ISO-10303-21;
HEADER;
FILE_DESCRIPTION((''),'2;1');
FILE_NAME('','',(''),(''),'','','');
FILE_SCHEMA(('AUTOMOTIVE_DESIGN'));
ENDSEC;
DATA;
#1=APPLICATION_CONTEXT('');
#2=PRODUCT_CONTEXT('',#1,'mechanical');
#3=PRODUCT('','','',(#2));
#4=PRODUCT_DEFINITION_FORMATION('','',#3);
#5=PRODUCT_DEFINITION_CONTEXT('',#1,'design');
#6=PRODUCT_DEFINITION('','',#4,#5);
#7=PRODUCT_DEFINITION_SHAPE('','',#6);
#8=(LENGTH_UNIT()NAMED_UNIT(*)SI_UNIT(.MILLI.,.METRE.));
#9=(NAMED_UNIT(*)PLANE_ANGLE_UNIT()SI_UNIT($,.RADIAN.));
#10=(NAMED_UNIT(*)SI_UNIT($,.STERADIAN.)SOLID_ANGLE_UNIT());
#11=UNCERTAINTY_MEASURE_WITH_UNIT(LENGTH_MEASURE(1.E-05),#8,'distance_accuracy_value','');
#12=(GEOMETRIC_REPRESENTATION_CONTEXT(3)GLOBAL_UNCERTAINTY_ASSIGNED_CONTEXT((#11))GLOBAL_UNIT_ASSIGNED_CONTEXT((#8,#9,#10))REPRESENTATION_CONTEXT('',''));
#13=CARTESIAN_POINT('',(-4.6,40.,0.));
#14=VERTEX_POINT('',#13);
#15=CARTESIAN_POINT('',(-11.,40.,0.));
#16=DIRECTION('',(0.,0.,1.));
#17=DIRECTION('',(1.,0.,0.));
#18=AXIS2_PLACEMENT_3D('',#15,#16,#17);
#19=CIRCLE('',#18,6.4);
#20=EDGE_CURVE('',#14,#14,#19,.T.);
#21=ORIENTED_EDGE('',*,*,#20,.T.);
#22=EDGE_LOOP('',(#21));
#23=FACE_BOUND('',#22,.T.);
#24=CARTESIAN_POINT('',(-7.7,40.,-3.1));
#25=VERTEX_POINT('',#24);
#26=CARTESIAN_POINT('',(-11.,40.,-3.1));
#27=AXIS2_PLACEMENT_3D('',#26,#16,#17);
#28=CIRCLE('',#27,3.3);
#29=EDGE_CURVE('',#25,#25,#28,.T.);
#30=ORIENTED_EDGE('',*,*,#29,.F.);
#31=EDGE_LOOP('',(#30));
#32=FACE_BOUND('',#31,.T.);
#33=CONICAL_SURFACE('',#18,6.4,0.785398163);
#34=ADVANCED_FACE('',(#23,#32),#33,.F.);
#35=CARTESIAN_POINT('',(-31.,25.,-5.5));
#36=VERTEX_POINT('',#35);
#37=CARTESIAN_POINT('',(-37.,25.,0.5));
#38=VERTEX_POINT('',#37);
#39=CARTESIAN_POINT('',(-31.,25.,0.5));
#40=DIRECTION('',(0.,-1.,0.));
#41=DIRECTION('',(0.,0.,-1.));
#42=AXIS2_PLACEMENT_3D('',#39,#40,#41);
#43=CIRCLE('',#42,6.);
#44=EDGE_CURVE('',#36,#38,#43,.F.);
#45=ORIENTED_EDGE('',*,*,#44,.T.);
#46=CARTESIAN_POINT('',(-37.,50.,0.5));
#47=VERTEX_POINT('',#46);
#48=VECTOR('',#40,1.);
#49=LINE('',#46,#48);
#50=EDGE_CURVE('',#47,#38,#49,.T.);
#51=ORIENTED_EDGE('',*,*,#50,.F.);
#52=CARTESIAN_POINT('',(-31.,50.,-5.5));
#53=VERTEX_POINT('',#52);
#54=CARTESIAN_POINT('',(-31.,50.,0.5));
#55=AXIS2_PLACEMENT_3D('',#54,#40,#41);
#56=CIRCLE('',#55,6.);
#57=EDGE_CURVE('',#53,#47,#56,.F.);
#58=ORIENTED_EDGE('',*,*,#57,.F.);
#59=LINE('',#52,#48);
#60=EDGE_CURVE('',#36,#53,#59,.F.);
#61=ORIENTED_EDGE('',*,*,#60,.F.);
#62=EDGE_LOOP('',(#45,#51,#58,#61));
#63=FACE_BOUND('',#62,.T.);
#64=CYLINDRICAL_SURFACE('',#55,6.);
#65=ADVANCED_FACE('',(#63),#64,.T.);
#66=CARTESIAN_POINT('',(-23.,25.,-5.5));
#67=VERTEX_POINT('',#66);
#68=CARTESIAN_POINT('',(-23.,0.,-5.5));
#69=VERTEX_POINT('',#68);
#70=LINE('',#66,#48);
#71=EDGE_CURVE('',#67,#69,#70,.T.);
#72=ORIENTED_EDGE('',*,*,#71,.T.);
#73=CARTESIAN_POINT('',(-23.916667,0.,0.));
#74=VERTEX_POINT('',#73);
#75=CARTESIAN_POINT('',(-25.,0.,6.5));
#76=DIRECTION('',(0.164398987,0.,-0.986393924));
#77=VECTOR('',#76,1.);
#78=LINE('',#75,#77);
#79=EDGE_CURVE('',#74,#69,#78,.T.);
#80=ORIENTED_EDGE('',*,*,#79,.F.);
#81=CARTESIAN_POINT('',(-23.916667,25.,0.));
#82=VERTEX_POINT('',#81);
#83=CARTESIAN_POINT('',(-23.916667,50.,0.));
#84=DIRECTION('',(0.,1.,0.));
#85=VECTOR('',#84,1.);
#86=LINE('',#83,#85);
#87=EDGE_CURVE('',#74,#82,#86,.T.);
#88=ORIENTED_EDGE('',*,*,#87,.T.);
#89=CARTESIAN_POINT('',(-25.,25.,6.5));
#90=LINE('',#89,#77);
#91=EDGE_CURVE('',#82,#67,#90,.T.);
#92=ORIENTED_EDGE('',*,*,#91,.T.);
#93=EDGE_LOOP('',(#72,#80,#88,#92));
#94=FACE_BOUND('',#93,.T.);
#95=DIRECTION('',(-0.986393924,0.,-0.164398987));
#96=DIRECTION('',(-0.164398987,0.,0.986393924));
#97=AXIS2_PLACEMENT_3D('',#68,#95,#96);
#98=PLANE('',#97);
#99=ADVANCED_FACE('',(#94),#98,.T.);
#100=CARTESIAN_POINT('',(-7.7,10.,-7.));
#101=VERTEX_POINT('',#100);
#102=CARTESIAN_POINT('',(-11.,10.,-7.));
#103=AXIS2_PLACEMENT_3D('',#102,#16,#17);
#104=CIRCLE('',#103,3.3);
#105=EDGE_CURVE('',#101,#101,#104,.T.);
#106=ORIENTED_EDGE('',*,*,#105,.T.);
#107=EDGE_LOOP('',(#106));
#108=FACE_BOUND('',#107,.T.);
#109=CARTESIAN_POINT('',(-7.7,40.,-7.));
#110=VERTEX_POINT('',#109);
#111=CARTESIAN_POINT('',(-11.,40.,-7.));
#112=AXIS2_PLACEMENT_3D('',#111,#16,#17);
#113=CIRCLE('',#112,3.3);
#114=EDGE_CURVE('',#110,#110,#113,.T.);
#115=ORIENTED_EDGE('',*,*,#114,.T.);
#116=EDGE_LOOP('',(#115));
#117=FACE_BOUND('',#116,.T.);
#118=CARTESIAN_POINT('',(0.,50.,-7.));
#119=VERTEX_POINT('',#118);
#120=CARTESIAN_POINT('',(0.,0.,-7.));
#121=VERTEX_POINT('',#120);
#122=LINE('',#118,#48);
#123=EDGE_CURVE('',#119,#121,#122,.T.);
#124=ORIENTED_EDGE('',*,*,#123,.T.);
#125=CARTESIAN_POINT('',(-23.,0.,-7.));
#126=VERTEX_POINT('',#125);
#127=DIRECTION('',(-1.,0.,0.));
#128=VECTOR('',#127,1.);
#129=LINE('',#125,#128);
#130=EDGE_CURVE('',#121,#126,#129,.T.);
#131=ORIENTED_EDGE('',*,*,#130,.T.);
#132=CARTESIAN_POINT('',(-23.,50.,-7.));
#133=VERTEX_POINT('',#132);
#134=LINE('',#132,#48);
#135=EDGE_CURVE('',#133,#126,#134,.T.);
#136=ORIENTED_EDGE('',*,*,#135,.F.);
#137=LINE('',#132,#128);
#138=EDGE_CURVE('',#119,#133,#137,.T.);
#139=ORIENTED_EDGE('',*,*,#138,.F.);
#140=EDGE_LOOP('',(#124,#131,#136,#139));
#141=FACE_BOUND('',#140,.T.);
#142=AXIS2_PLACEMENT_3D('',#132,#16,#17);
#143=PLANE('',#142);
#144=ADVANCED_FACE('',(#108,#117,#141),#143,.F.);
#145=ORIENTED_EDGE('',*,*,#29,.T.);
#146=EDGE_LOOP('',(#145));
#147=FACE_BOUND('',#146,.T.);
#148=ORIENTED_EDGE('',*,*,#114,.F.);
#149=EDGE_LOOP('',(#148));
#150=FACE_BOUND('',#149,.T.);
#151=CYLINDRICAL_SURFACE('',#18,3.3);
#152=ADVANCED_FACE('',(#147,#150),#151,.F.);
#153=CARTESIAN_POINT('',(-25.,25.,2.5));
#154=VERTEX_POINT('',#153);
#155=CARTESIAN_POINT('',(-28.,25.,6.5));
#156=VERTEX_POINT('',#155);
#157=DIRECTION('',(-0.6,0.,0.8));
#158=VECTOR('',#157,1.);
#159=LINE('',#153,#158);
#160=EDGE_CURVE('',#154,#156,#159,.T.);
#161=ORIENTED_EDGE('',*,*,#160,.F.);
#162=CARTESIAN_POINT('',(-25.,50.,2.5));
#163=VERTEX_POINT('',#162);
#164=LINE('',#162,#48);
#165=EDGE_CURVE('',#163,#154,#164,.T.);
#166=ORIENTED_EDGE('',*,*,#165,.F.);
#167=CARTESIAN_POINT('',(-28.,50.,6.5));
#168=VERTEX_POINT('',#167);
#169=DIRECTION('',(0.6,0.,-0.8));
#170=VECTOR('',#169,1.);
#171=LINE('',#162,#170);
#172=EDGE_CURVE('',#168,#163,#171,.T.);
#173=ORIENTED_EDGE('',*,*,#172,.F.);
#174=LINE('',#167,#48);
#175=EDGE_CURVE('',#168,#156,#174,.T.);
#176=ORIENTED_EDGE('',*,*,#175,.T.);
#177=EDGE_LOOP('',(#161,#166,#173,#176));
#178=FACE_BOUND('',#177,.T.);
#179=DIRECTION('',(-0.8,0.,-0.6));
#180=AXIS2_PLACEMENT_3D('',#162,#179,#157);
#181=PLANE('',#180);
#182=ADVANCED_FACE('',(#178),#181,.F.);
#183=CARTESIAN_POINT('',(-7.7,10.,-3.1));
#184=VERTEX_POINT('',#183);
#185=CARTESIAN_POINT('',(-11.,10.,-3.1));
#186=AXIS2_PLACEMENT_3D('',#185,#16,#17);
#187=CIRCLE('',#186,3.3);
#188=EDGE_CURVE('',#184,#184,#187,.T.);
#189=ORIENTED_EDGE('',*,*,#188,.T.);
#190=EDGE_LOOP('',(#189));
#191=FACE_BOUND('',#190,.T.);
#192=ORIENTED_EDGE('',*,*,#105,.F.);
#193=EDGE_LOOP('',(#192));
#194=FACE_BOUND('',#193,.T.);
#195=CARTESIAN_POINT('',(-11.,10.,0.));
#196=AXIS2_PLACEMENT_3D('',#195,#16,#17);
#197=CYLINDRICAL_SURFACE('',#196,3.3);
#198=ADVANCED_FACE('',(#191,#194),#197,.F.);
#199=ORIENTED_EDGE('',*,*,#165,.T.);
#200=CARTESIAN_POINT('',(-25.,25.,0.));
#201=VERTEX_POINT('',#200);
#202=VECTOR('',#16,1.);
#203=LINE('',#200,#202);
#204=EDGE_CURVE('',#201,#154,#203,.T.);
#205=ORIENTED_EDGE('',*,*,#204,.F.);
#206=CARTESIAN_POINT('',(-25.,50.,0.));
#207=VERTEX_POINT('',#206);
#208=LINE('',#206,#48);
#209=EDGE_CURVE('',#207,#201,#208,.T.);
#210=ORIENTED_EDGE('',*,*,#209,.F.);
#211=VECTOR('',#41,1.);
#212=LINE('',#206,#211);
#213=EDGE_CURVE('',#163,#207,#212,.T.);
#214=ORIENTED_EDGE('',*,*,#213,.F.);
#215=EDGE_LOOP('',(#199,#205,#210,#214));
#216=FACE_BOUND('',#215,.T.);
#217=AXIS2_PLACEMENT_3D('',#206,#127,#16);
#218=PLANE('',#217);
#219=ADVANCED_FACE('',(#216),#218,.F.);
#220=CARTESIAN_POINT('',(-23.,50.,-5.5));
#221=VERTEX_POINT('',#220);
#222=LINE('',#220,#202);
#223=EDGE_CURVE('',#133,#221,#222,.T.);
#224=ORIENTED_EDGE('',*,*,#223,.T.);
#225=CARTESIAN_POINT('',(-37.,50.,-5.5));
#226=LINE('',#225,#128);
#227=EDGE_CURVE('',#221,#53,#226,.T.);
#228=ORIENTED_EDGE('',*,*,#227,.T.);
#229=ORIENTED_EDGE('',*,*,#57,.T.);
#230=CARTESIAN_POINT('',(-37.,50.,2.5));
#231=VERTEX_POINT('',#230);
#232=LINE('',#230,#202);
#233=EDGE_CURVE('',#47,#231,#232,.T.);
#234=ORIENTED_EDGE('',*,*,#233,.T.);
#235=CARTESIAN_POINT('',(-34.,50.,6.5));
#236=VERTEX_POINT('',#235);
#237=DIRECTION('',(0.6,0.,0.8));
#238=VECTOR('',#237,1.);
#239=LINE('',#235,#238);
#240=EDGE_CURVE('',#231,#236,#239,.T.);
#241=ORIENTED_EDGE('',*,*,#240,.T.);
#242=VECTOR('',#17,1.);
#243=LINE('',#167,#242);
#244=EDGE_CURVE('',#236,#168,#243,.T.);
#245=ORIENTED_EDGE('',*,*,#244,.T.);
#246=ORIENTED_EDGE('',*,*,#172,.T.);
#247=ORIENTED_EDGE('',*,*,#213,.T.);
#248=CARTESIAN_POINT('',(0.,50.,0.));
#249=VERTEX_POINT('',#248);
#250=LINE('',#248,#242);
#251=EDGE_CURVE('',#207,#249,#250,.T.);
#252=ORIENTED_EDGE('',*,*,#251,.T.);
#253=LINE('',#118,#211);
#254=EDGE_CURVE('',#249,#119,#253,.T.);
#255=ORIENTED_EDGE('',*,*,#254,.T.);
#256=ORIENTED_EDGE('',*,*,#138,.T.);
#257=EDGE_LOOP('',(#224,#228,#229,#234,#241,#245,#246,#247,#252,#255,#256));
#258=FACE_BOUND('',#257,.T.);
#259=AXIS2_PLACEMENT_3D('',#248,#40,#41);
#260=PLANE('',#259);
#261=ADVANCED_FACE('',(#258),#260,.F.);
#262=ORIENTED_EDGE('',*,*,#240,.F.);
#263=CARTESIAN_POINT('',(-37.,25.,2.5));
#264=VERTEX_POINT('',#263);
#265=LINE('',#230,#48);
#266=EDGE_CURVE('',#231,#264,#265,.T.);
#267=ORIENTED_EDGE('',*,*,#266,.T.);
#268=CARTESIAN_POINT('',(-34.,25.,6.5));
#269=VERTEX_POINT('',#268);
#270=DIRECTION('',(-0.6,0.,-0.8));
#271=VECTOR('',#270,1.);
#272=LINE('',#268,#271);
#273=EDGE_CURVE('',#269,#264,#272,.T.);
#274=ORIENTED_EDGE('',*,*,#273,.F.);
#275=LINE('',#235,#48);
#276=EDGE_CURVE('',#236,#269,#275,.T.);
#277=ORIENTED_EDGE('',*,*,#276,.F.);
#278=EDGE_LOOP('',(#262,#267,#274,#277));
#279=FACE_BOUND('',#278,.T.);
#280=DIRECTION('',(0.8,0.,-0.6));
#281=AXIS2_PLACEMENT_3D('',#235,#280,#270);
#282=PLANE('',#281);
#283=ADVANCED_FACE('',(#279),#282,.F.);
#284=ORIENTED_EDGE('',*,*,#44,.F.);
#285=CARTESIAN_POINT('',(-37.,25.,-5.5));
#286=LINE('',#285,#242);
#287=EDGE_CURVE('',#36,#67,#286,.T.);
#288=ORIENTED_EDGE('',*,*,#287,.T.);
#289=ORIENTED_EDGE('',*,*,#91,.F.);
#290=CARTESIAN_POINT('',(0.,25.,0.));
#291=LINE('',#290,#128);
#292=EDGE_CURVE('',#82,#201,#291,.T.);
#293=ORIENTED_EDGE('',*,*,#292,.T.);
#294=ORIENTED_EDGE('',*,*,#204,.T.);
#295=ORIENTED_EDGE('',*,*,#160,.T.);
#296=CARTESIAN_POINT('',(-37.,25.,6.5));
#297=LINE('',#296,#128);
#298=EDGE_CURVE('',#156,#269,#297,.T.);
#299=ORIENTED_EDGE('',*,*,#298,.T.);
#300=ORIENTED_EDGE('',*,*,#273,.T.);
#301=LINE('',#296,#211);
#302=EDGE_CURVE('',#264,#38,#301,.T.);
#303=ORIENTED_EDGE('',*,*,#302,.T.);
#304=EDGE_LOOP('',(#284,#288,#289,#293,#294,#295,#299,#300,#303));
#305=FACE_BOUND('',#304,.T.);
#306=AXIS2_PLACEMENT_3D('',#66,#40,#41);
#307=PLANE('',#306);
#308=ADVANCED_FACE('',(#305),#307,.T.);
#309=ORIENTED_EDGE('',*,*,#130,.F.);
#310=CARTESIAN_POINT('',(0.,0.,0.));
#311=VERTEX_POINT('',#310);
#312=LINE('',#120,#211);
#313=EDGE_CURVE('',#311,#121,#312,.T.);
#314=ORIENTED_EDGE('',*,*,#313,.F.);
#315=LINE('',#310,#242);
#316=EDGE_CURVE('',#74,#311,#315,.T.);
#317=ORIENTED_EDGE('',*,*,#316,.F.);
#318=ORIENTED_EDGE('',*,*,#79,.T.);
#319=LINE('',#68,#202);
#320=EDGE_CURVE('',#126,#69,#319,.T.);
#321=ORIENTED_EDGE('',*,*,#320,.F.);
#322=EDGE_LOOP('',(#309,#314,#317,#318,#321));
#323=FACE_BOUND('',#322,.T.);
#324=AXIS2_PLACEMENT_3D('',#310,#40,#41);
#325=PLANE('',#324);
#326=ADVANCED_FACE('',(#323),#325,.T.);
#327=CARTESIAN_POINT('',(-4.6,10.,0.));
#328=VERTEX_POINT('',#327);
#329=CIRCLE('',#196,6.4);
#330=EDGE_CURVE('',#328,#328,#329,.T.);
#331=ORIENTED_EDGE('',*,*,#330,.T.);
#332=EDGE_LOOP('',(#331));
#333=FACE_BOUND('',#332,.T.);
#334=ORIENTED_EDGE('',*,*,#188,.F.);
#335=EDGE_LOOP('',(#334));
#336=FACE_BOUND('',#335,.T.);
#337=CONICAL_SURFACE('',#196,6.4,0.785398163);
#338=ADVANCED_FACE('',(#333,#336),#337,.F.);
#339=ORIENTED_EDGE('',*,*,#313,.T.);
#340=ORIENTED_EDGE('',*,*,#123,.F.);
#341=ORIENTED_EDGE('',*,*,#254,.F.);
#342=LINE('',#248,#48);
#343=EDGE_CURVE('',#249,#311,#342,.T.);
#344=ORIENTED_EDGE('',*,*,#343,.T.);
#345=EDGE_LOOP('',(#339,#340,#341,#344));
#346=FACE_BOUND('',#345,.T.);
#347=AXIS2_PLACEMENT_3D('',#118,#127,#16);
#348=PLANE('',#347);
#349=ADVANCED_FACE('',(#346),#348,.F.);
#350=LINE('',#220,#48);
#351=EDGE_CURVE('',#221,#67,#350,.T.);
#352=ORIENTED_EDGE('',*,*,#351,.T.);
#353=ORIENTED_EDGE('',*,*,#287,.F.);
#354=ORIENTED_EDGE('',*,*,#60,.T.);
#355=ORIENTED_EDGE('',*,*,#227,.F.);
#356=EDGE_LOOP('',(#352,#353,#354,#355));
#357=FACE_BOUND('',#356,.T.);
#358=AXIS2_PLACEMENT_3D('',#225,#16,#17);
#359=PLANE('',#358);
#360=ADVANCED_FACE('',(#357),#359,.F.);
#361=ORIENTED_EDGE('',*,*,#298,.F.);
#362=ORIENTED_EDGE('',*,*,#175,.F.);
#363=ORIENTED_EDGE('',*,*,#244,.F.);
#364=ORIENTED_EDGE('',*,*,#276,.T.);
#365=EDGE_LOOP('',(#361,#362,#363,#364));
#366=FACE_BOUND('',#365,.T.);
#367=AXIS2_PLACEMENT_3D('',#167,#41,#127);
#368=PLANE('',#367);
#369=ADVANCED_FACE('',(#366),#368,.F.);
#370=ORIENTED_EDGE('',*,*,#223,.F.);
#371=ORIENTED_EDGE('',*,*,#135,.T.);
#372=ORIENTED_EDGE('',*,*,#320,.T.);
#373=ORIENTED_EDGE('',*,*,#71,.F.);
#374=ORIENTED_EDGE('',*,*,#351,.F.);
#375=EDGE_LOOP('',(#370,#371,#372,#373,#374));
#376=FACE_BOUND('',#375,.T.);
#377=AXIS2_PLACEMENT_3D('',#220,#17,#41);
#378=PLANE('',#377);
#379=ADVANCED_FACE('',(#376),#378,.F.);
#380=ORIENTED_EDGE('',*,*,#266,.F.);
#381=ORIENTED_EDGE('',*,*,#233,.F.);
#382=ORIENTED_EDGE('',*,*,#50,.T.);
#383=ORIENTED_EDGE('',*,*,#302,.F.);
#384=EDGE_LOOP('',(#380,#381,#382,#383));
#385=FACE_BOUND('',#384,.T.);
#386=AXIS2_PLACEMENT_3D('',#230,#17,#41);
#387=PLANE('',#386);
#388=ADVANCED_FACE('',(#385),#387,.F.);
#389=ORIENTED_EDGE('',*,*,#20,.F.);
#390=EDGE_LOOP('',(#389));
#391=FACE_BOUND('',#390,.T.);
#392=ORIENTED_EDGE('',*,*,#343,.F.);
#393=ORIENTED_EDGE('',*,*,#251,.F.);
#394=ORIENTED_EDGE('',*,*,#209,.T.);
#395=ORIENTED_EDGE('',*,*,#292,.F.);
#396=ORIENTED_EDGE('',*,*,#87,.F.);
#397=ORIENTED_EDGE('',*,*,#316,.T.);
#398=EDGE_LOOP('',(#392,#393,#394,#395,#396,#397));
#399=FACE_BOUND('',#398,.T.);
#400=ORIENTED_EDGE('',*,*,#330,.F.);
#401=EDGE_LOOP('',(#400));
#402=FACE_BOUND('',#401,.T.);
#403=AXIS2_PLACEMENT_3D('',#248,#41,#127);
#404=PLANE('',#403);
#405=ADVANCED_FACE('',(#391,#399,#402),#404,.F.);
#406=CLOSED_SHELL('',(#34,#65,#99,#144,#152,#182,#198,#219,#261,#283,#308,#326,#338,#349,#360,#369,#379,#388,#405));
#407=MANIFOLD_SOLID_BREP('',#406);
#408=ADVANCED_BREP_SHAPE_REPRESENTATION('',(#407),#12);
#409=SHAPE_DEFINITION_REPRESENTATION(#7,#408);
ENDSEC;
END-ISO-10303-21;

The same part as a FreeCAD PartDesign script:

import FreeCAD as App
import Part
import Sketcher
Q = App.Units.Quantity


def edges_at(feature, points):
    """Names of the edges that pass closest to the given points."""
    edges = feature.Shape.Edges
    near = lambda p: min(range(len(edges)), key=lambda i: edges[i].distToShape(Part.Vertex(*p))[0])
    return sorted({f"Edge{near(p) + 1}" for p in points})


def add_polygon(sketch, points):
    """Adds a closed chain of lines whose ends are joined by coincident constraints."""
    first, n = sketch.GeometryCount, len(points)
    for a, b in zip(points, points[1:] + points[:1]):
        sketch.addGeometry(Part.LineSegment(App.Vector(*a, 0), App.Vector(*b, 0)), False)
    for i in range(n):
        sketch.addConstraint(Sketcher.Constraint("Coincident", first + i, 2, first + (i + 1) % n, 1))

doc = App.newDocument("Part")
body = doc.addObject("PartDesign::Body", "Body")

# Sketch on XZ plane
sketch1 = body.newObject("Sketcher::SketchObject", "Sketch")
sketch1.AttachmentSupport = (doc.getObject("XZ_Plane"), [""])
sketch1.MapMode = "FlatFace"
add_polygon(sketch1, [(-25, 0), (0, 0), (0, -7), (-23, -7), (-23, -5.5), (-37, -5.5), (-37, 2.5), (-34, 6.5), (-28, 6.5), (-25, 2.5)])  # lines 0-9
sketch1.addConstraint([
    Sketcher.Constraint("Horizontal", 0),
    Sketcher.Constraint("Vertical", 1),
    Sketcher.Constraint("Horizontal", 2),
    Sketcher.Constraint("Vertical", 3),
    Sketcher.Constraint("Horizontal", 4),
    Sketcher.Constraint("Vertical", 5),
    Sketcher.Constraint("Horizontal", 7),
    Sketcher.Constraint("Vertical", 9),
    Sketcher.Constraint("Coincident", 0, 2, -1, 1),
    Sketcher.Constraint("Horizontal", 5, 2, 8, 2),
    Sketcher.Constraint("Equal", 6, 8),
    Sketcher.Constraint("DistanceX", 0, 1, 0, 2, Q("25 mm")),
    Sketcher.Constraint("DistanceX", 2, 2, 2, 1, Q("23 mm")),
    Sketcher.Constraint("DistanceX", 4, 2, 4, 1, Q("14 mm")),
    Sketcher.Constraint("DistanceX", 7, 1, 7, 2, Q("6 mm")),
    Sketcher.Constraint("DistanceY", 1, 2, 1, 1, Q("7 mm")),
    Sketcher.Constraint("DistanceY", 5, 1, 5, 2, Q("8 mm")),
    Sketcher.Constraint("Distance", 6, Q("5 mm")),
    Sketcher.Constraint("DistanceY", 3, 1, 3, 2, Q("1.5 mm")),
])
pad1 = body.newObject("PartDesign::Pad", "Pad")
pad1.Profile = sketch1
pad1.Length = 50
pad1.Reversed = True
doc.recompute()

fillet = body.newObject("PartDesign::Fillet", "Fillet")
fillet.Base = (pad1, edges_at(pad1, [(-37, 25, -5.5)]))
fillet.Radius = 6

# Sketch on XY plane
sketch2 = body.newObject("Sketcher::SketchObject", "Sketch001")
sketch2.AttachmentSupport = (doc.getObject("XY_Plane"), [""])
sketch2.MapMode = "FlatFace"
sketch2.addGeometry([
    Part.Circle(App.Vector(-11, 40, 0), App.Vector(0, 0, 1), 3.3),
    Part.Circle(App.Vector(-11, 10, 0), App.Vector(0, 0, 1), 3.3),
], False)
sketch2.addConstraint([
    Sketcher.Constraint("Equal", 0, 1),
    Sketcher.Constraint("Vertical", 0, 3, 1, 3),
    Sketcher.Constraint("Diameter", 0, Q("6.6 mm")),
    Sketcher.Constraint("DistanceX", 0, 3, -1, 1, Q("11 mm")),
    Sketcher.Constraint("DistanceY", -1, 1, 0, 3, Q("40 mm")),
    Sketcher.Constraint("DistanceY", -1, 1, 1, 3, Q("10 mm")),
])
doc.recompute()
hole = body.newObject("PartDesign::Hole", "Hole")
hole.Profile = sketch2
hole.ThreadType = "None"
hole.Diameter = 6.6
hole.DepthType = "ThroughAll"
hole.HoleCutType = "Countersink"
hole.HoleCutDiameter = 12.8
hole.HoleCutCountersinkAngle = 90

# Sketch on XY plane
sketch3 = body.newObject("Sketcher::SketchObject", "Sketch002")
sketch3.AttachmentSupport = (doc.getObject("XY_Plane"), [""])
sketch3.MapMode = "FlatFace"
sketch3.AttachmentOffset = App.Placement(App.Vector(0, 0, 6.5), App.Rotation())
add_polygon(sketch3, [(-37, 0), (-25, 0), (-25, 25), (-37, 25)])  # lines 0-3
sketch3.addConstraint([
    Sketcher.Constraint("Horizontal", 0),
    Sketcher.Constraint("Vertical", 1),
    Sketcher.Constraint("Horizontal", 2),
    Sketcher.Constraint("Vertical", 3),
    Sketcher.Constraint("PointOnObject", 0, 2, -1),
    Sketcher.Constraint("DistanceX", 0, 1, 0, 2, Q("12 mm")),
    Sketcher.Constraint("DistanceY", 1, 1, 1, 2, Q("25 mm")),
    Sketcher.Constraint("DistanceX", 0, 2, -1, 1, Q("25 mm")),
])

# Sketch on XY plane
sketch4 = body.newObject("Sketcher::SketchObject", "Sketch003")
sketch4.AttachmentSupport = (doc.getObject("XY_Plane"), [""])
sketch4.MapMode = "FlatFace"
sketch4.AttachmentOffset = App.Placement(App.Vector(0, 0, -5.5), App.Rotation())
add_polygon(sketch4, [(-37, 25), (-23, 25), (-23, 0), (-37, 0)])  # lines 0-3
sketch4.addConstraint([
    Sketcher.Constraint("Horizontal", 0),
    Sketcher.Constraint("Vertical", 1),
    Sketcher.Constraint("Horizontal", 2),
    Sketcher.Constraint("Vertical", 3),
    Sketcher.Constraint("PointOnObject", 1, 2, -1),
    Sketcher.Constraint("DistanceX", 0, 1, 0, 2, Q("14 mm")),
    Sketcher.Constraint("DistanceY", 1, 2, 1, 1, Q("25 mm")),
    Sketcher.Constraint("DistanceX", 0, 2, -1, 1, Q("23 mm")),
])

subtractiveloft = body.newObject("PartDesign::SubtractiveLoft", "SubtractiveLoft")
subtractiveloft.Profile = sketch3
subtractiveloft.Sections = [sketch4]

doc.recompute()
